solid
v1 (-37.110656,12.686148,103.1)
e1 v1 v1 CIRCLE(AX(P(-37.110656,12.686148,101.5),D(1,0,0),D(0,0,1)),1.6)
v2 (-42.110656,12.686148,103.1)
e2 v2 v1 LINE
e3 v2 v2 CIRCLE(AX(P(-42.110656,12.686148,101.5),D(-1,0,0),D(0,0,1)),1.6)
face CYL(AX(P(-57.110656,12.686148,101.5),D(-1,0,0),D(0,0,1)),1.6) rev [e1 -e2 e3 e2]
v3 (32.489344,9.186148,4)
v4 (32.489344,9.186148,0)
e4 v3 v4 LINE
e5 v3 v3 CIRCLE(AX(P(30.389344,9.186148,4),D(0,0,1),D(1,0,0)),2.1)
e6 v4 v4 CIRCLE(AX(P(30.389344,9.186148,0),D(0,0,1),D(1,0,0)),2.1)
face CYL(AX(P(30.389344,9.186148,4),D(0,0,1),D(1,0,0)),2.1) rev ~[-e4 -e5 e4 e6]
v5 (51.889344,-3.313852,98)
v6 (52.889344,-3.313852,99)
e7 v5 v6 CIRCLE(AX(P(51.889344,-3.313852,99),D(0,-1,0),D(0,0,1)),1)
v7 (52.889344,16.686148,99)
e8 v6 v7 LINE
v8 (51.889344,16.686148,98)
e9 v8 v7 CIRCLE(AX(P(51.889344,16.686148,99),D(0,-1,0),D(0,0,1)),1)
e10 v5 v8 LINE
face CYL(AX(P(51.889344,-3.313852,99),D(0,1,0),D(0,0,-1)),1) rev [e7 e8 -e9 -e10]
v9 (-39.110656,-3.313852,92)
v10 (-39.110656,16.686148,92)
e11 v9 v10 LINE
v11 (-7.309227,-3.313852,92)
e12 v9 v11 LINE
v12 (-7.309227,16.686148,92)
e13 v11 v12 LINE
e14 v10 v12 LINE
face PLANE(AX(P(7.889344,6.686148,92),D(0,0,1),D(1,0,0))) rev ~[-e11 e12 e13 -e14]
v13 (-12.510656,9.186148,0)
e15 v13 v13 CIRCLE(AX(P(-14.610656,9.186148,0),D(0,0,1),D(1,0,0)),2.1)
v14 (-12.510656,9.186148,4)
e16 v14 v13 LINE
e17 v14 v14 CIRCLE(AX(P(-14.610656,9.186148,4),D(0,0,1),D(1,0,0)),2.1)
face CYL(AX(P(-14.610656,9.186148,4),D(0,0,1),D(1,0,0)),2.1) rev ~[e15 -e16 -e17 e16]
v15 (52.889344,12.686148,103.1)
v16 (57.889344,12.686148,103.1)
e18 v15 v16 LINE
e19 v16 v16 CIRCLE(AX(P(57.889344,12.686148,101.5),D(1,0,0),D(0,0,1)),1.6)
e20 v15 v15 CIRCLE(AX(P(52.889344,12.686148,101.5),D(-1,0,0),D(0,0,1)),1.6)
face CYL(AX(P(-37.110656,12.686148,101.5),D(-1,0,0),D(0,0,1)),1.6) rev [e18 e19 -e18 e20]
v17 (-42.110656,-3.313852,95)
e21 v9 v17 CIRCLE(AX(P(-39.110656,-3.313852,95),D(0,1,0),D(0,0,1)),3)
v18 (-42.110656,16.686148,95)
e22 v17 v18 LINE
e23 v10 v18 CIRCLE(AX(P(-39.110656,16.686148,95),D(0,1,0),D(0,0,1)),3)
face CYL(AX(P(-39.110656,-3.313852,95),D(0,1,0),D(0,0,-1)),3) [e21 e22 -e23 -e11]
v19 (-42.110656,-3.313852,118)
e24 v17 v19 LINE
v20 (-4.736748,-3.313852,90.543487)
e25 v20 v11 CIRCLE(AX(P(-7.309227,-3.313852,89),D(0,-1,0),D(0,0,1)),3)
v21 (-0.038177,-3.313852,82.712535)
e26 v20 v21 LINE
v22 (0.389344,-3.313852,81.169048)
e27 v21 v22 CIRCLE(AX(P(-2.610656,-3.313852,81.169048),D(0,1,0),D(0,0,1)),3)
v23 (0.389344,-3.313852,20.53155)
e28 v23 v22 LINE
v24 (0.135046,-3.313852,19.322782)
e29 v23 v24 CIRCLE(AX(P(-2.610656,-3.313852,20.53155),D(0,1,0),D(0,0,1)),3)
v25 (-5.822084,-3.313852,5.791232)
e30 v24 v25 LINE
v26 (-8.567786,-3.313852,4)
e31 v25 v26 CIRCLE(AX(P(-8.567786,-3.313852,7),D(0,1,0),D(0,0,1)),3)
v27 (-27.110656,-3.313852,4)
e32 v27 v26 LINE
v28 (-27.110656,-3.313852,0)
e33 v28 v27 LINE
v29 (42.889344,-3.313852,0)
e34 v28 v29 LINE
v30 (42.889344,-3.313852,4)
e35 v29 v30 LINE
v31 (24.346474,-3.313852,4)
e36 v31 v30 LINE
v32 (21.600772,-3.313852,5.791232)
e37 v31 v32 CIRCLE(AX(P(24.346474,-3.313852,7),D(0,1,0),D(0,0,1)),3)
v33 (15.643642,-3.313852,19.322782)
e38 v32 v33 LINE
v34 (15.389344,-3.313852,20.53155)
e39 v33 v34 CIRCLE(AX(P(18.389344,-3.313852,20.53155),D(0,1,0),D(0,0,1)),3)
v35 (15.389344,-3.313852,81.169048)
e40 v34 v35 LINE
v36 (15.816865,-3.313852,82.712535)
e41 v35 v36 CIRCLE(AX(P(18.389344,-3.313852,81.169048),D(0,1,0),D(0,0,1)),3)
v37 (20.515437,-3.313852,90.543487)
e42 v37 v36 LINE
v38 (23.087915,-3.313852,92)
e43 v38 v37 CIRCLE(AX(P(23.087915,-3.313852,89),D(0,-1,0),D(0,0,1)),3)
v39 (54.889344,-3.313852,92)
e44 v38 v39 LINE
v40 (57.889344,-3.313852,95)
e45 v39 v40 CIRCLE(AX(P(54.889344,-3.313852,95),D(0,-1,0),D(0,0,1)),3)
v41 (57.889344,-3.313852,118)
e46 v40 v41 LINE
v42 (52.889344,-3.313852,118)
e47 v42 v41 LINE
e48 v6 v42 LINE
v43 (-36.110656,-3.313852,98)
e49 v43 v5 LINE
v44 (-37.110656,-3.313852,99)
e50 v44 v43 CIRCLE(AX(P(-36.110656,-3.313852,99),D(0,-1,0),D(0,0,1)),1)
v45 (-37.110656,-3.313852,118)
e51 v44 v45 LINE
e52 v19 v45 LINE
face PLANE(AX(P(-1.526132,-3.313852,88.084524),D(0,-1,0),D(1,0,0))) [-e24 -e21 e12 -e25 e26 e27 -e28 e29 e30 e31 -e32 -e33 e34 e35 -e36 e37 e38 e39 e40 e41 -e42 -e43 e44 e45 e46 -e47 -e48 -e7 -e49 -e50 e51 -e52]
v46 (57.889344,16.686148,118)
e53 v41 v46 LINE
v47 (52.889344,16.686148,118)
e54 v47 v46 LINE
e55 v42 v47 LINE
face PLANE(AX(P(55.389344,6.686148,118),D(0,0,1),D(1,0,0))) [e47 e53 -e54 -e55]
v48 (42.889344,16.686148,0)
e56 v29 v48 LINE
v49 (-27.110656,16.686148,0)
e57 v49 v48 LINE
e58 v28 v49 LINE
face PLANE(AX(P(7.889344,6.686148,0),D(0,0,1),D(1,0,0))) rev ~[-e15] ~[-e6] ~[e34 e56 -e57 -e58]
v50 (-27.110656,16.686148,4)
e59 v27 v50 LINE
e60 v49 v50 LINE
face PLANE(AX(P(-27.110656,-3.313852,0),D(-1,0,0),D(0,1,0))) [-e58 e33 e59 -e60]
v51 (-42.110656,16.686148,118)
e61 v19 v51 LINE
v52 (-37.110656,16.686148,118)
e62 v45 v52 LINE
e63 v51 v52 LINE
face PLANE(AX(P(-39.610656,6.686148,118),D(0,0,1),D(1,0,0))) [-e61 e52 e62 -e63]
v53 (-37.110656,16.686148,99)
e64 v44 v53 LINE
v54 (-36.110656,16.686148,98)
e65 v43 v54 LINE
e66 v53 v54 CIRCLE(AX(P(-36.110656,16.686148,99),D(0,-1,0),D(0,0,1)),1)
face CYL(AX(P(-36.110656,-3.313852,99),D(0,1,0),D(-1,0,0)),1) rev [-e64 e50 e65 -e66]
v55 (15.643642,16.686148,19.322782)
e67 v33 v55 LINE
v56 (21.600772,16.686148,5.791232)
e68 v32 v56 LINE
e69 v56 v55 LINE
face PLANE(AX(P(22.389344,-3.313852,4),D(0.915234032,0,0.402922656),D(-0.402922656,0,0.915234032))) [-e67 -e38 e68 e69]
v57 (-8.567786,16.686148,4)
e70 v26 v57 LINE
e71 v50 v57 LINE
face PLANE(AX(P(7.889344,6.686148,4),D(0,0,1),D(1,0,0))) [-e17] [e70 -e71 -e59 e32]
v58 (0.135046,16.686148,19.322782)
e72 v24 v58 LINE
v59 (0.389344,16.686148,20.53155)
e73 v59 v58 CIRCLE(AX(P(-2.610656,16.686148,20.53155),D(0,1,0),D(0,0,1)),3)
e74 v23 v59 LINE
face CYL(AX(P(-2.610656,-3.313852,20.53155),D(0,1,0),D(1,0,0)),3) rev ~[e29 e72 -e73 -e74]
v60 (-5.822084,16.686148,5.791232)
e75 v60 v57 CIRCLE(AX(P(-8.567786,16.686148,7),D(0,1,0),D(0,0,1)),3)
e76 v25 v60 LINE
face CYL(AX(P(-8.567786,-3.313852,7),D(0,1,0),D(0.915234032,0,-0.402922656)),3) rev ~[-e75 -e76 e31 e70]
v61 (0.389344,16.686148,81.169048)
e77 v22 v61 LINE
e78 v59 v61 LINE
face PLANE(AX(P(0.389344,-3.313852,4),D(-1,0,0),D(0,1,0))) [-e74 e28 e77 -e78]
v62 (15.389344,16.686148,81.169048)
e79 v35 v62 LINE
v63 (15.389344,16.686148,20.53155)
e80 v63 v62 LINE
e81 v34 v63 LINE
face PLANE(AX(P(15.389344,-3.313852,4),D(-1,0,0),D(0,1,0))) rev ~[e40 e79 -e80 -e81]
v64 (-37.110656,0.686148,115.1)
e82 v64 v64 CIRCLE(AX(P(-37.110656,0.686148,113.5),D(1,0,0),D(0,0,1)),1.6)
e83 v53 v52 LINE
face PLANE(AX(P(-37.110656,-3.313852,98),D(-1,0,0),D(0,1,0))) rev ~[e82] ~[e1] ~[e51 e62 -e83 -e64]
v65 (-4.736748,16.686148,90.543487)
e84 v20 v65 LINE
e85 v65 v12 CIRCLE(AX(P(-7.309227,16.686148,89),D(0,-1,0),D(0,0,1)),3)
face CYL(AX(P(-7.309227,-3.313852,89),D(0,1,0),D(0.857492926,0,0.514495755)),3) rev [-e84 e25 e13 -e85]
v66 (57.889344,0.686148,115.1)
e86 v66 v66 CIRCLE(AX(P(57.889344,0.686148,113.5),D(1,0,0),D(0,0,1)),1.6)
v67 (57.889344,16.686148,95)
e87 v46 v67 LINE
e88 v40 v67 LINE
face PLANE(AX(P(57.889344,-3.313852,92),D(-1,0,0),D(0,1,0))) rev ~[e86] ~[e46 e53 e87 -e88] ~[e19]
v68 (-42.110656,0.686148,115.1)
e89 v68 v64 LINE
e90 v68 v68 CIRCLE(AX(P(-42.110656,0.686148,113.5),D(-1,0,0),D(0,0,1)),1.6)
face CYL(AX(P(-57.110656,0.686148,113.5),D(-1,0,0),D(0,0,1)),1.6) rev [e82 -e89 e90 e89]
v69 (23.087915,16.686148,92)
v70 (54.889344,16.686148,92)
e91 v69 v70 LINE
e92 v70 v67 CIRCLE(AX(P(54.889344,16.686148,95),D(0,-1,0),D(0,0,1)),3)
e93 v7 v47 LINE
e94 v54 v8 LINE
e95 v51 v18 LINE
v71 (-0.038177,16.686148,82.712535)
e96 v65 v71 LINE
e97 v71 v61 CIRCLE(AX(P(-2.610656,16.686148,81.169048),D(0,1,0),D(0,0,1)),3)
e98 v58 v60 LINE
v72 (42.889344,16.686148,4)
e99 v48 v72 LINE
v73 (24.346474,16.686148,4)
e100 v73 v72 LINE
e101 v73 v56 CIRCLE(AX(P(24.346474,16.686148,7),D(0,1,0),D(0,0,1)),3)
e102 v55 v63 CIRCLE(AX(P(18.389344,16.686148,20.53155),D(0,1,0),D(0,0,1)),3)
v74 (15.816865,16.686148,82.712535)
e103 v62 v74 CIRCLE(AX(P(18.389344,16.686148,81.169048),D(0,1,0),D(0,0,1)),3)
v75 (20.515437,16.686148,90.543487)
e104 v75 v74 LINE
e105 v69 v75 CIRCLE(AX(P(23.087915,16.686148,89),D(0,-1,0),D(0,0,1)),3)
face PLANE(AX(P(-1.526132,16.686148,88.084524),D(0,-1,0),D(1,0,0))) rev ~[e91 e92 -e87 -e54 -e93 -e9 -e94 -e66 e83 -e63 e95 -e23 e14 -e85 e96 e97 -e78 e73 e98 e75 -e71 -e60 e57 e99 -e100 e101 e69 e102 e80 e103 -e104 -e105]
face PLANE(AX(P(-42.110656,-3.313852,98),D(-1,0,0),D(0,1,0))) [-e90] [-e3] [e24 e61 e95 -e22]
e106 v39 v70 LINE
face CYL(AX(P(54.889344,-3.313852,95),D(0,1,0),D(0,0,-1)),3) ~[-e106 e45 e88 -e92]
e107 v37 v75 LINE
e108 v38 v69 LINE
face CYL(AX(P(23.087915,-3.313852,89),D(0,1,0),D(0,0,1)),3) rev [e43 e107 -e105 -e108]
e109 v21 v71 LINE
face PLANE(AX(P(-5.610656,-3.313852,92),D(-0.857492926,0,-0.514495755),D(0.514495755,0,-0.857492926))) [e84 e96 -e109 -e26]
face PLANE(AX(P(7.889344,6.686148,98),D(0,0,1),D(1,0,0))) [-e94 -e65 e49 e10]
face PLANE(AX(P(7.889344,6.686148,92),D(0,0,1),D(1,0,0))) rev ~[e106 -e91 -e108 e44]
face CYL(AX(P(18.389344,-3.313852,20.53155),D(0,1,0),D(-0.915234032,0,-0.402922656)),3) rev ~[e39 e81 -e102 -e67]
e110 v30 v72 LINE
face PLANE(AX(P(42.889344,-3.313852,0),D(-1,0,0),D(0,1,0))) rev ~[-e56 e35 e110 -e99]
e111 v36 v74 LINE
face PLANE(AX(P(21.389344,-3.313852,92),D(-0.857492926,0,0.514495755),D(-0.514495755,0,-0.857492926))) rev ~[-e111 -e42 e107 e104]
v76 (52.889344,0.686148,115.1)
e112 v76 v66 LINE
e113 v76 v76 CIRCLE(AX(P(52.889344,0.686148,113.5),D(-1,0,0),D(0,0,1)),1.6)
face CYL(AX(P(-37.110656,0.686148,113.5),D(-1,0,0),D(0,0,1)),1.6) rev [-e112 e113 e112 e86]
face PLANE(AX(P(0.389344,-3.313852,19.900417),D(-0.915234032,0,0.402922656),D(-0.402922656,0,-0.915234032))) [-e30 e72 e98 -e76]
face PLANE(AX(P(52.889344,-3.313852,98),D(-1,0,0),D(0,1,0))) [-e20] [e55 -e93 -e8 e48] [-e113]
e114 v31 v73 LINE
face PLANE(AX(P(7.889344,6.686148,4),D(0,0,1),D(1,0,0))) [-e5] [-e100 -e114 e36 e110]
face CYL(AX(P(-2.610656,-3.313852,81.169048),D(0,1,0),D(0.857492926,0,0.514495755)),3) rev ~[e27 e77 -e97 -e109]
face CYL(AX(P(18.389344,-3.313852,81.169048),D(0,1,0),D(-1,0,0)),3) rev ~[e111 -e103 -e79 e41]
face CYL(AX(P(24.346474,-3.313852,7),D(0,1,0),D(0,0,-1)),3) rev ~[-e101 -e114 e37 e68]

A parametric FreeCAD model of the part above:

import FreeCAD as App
import Part
import Sketcher
Q = App.Units.Quantity


def edges_at(feature, points):
    """Names of the edges that pass closest to the given points."""
    edges = feature.Shape.Edges
    near = lambda p: min(range(len(edges)), key=lambda i: edges[i].distToShape(Part.Vertex(*p))[0])
    return sorted({f"Edge{near(p) + 1}" for p in points})


def add_polygon(sketch, points):
    """Adds a closed chain of lines whose ends are joined by coincident constraints."""
    first, n = sketch.GeometryCount, len(points)
    for a, b in zip(points, points[1:] + points[:1]):
        sketch.addGeometry(Part.LineSegment(App.Vector(*a, 0), App.Vector(*b, 0)), False)
    for i in range(n):
        sketch.addConstraint(Sketcher.Constraint("Coincident", first + i, 2, first + (i + 1) % n, 1))

doc = App.newDocument("Part")
params = doc.addObject("Spreadsheet::Sheet", "Params")
for row, (alias, value) in enumerate([
    ("sketch1_width", "70 mm"),
    ("sketch1_height", "20 mm"),
    ("pad1_length", "4 mm"),
    ("sketch2_diameter", "4.2 mm"),
    ("pocket1_length", "4 mm"),
    ("sketch3_width", "15 mm"),
    ("sketch3_height", "20 mm"),
    ("pad2_length", "88 mm"),
    ("sketch4_width", "100 mm"),
    ("sketch4_height", "20 mm"),
    ("pad3_length", "6 mm"),
    ("sketch5_width", "5 mm"),
    ("sketch5_height", "20 mm"),
    ("pad4_length", "20 mm"),
    ("sketch6_diameter", "3.2 mm"),
    ("pocket2_length", "95 mm"),
    ("sketch7_diameter", "3.2 mm"),
    ("pocket3_length", "20 mm"),
    ("sketch8_width", "7 mm"),
    ("pad5_length", "20 mm"),
    ("sketch9_width", "6 mm"),
    ("sketch9_height", "10 mm"),
    ("pad6_length", "20 mm"),
    ("fillet_radius", "3 mm"),
    ("fillet2_radius", "1 mm"),
], start=1):
    params.set(f"A{row}", alias)
    params.set(f"B{row}", "=" + value)
    params.setAlias(f"B{row}", alias)

body = doc.addObject("PartDesign::Body", "Body")

# Sketch on XY plane
sketch1 = body.newObject("Sketcher::SketchObject", "Sketch")
sketch1.AttachmentSupport = (doc.getObject("XY_Plane"), [""])
sketch1.MapMode = "FlatFace"
add_polygon(sketch1, [(-27, 17), (-27, -3), (43, -3), (43, 17)])  # lines 0-3
sketch1.addConstraint([
    Sketcher.Constraint("Vertical", 0),
    Sketcher.Constraint("Horizontal", 1),
    Sketcher.Constraint("Vertical", 2),
    Sketcher.Constraint("Horizontal", 3),
    Sketcher.Constraint("DistanceX", 1, 1, 1, 2, Q("70 mm")),
    Sketcher.Constraint("DistanceY", 0, 2, 0, 1, Q("20 mm")),
    Sketcher.Constraint("DistanceX", 0, 2, -1, 1, Q("27.110656 mm")),
    Sketcher.Constraint("DistanceY", 0, 2, -1, 1, Q("3.313852 mm")),
])
sketch1.setExpression("Constraints[8]", "Params.sketch1_width")
sketch1.setExpression("Constraints[9]", "Params.sketch1_height")
pad1 = body.newObject("PartDesign::Pad", "Pad")
pad1.Profile = sketch1
pad1.setExpression("Length", "Params.pad1_length")

# Sketch on XY plane
sketch2 = body.newObject("Sketcher::SketchObject", "Sketch001")
sketch2.AttachmentSupport = (doc.getObject("XY_Plane"), [""])
sketch2.MapMode = "FlatFace"
sketch2.AttachmentOffset = App.Placement(App.Vector(0, 0, 4), App.Rotation())
sketch2.addGeometry([
    Part.Circle(App.Vector(-14.6, 9.2, 0), App.Vector(0, 0, 1), 2.1),
    Part.Circle(App.Vector(30.4, 9.2, 0), App.Vector(0, 0, 1), 2.1),
], False)
sketch2.addConstraint([
    Sketcher.Constraint("Equal", 0, 1),
    Sketcher.Constraint("Horizontal", 0, 3, 1, 3),
    Sketcher.Constraint("Diameter", 0, Q("4.2 mm")),
    Sketcher.Constraint("DistanceX", 0, 3, 1, 3, Q("45 mm")),
    Sketcher.Constraint("DistanceX", 0, 3, -1, 1, Q("14.610656 mm")),
    Sketcher.Constraint("DistanceY", -1, 1, 0, 3, Q("9.186148 mm")),
])
sketch2.setExpression("Constraints[2]", "Params.sketch2_diameter")
pocket1 = body.newObject("PartDesign::Pocket", "Pocket")
pocket1.Profile = sketch2
pocket1.setExpression("Length", "Params.pocket1_length")

# Sketch on XY plane
sketch3 = body.newObject("Sketcher::SketchObject", "Sketch002")
sketch3.AttachmentSupport = (doc.getObject("XY_Plane"), [""])
sketch3.MapMode = "FlatFace"
sketch3.AttachmentOffset = App.Placement(App.Vector(0, 0, 4), App.Rotation())
add_polygon(sketch3, [(0, 17), (0, -3), (15, -3), (15, 17)])  # lines 0-3
sketch3.addConstraint([
    Sketcher.Constraint("Vertical", 0),
    Sketcher.Constraint("Horizontal", 1),
    Sketcher.Constraint("Vertical", 2),
    Sketcher.Constraint("Horizontal", 3),
    Sketcher.Constraint("DistanceX", 1, 1, 1, 2, Q("15 mm")),
    Sketcher.Constraint("DistanceY", 0, 2, 0, 1, Q("20 mm")),
    Sketcher.Constraint("DistanceX", -1, 1, 0, 2, Q("0.389344 mm")),
    Sketcher.Constraint("DistanceY", 0, 2, -1, 1, Q("3.313852 mm")),
])
sketch3.setExpression("Constraints[8]", "Params.sketch3_width")
sketch3.setExpression("Constraints[9]", "Params.sketch3_height")
pad2 = body.newObject("PartDesign::Pad", "Pad001")
pad2.Profile = sketch3
pad2.setExpression("Length", "Params.pad2_length")

# Sketch on XY plane
sketch4 = body.newObject("Sketcher::SketchObject", "Sketch003")
sketch4.AttachmentSupport = (doc.getObject("XY_Plane"), [""])
sketch4.MapMode = "FlatFace"
sketch4.AttachmentOffset = App.Placement(App.Vector(0, 0, 92), App.Rotation())
add_polygon(sketch4, [(-42, 17), (-42, -3), (58, -3), (58, 17)])  # lines 0-3
sketch4.addConstraint([
    Sketcher.Constraint("Vertical", 0),
    Sketcher.Constraint("Horizontal", 1),
    Sketcher.Constraint("Vertical", 2),
    Sketcher.Constraint("Horizontal", 3),
    Sketcher.Constraint("DistanceX", 1, 1, 1, 2, Q("100 mm")),
    Sketcher.Constraint("DistanceY", 0, 2, 0, 1, Q("20 mm")),
    Sketcher.Constraint("DistanceX", 0, 2, -1, 1, Q("42.110656 mm")),
    Sketcher.Constraint("DistanceY", 0, 2, -1, 1, Q("3.313852 mm")),
])
sketch4.setExpression("Constraints[8]", "Params.sketch4_width")
sketch4.setExpression("Constraints[9]", "Params.sketch4_height")
pad3 = body.newObject("PartDesign::Pad", "Pad002")
pad3.Profile = sketch4
pad3.setExpression("Length", "Params.pad3_length")

# Sketch on XY plane
sketch5 = body.newObject("Sketcher::SketchObject", "Sketch004")
sketch5.AttachmentSupport = (doc.getObject("XY_Plane"), [""])
sketch5.MapMode = "FlatFace"
sketch5.AttachmentOffset = App.Placement(App.Vector(0, 0, 98), App.Rotation())
add_polygon(sketch5, [(-42, 17), (-42, -3), (-37, -3), (-37, 17)])  # lines 0-3
add_polygon(sketch5, [(53, 17), (53, -3), (58, -3), (58, 17)])  # lines 4-7
sketch5.addConstraint([
    Sketcher.Constraint("Vertical", 0),
    Sketcher.Constraint("Horizontal", 1),
    Sketcher.Constraint("Vertical", 2),
    Sketcher.Constraint("Horizontal", 3),
    Sketcher.Constraint("Vertical", 4),
    Sketcher.Constraint("Horizontal", 5),
    Sketcher.Constraint("Vertical", 6),
    Sketcher.Constraint("Horizontal", 7),
    Sketcher.Constraint("Horizontal", 1, 2, 4, 2),
    Sketcher.Constraint("Horizontal", 3, 2, 6, 2),
    Sketcher.Constraint("Equal", 3, 5),
    Sketcher.Constraint("DistanceX", 1, 1, 1, 2, Q("5 mm")),
    Sketcher.Constraint("DistanceY", 0, 2, 0, 1, Q("20 mm")),
    Sketcher.Constraint("DistanceX", 1, 2, 4, 2, Q("90 mm")),
    Sketcher.Constraint("DistanceX", 0, 2, -1, 1, Q("42.110656 mm")),
    Sketcher.Constraint("DistanceY", 0, 2, -1, 1, Q("3.313852 mm")),
])
sketch5.setExpression("Constraints[19]", "Params.sketch5_width")
sketch5.setExpression("Constraints[20]", "Params.sketch5_height")
pad4 = body.newObject("PartDesign::Pad", "Pad003")
pad4.Profile = sketch5
pad4.setExpression("Length", "Params.pad4_length")

# Sketch on YZ plane
sketch6 = body.newObject("Sketcher::SketchObject", "Sketch005")
sketch6.AttachmentSupport = (doc.getObject("YZ_Plane"), [""])
sketch6.MapMode = "FlatFace"
sketch6.AttachmentOffset = App.Placement(App.Vector(0, 0, -37.110656), App.Rotation())
sketch6.addGeometry([
    Part.Circle(App.Vector(12.7, 101.5, 0), App.Vector(0, 0, 1), 1.6),
    Part.Circle(App.Vector(0.7, 113.5, 0), App.Vector(0, 0, 1), 1.6),
], False)
sketch6.addConstraint([
    Sketcher.Constraint("Equal", 0, 1),
    Sketcher.Constraint("Diameter", 0, Q("3.2 mm")),
    Sketcher.Constraint("DistanceX", 1, 3, 0, 3, Q("12 mm")),
    Sketcher.Constraint("DistanceY", 0, 3, 1, 3, Q("12 mm")),
    Sketcher.Constraint("DistanceY", -1, 1, 0, 3, Q("101.5 mm")),
    Sketcher.Constraint("DistanceX", -1, 1, 0, 3, Q("12.686148 mm")),
])
sketch6.setExpression("Constraints[1]", "Params.sketch6_diameter")
pocket2 = body.newObject("PartDesign::Pocket", "Pocket001")
pocket2.Profile = sketch6
pocket2.setExpression("Length", "Params.pocket2_length")
pocket2.Reversed = True

# Sketch on YZ plane
sketch7 = body.newObject("Sketcher::SketchObject", "Sketch006")
sketch7.AttachmentSupport = (doc.getObject("YZ_Plane"), [""])
sketch7.MapMode = "FlatFace"
sketch7.AttachmentOffset = App.Placement(App.Vector(0, 0, -57.110656), App.Rotation())
sketch7.addGeometry([
    Part.Circle(App.Vector(12.7, 101.5, 0), App.Vector(0, 0, 1), 1.6),
    Part.Circle(App.Vector(0.7, 113.5, 0), App.Vector(0, 0, 1), 1.6),
], False)
sketch7.addConstraint([
    Sketcher.Constraint("Equal", 0, 1),
    Sketcher.Constraint("Diameter", 0, Q("3.2 mm")),
    Sketcher.Constraint("DistanceX", 1, 3, 0, 3, Q("12 mm")),
    Sketcher.Constraint("DistanceY", 0, 3, 1, 3, Q("12 mm")),
    Sketcher.Constraint("DistanceY", -1, 1, 0, 3, Q("101.5 mm")),
    Sketcher.Constraint("DistanceX", -1, 1, 0, 3, Q("12.686148 mm")),
])
sketch7.setExpression("Constraints[1]", "Params.sketch7_diameter")
pocket3 = body.newObject("PartDesign::Pocket", "Pocket002")
pocket3.Profile = sketch7
pocket3.setExpression("Length", "Params.pocket3_length")
pocket3.Reversed = True

# Sketch on XZ plane
sketch8 = body.newObject("Sketcher::SketchObject", "Sketch007")
sketch8.AttachmentSupport = (doc.getObject("XZ_Plane"), [""])
sketch8.MapMode = "FlatFace"
sketch8.AttachmentOffset = App.Placement(App.Vector(0, 0, 3.313852), App.Rotation())
add_polygon(sketch8, [(0, 4), (0, 20), (-7, 4)])  # lines 0-2
add_polygon(sketch8, [(15, 4), (22, 4), (15, 20)])  # lines 3-5
sketch8.addConstraint([
    Sketcher.Constraint("Vertical", 0),
    Sketcher.Constraint("Horizontal", 2),
    Sketcher.Constraint("Horizontal", 3),
    Sketcher.Constraint("Vertical", 5),
    Sketcher.Constraint("Horizontal", 2, 2, 3, 2),
    Sketcher.Constraint("Horizontal", 0, 2, 4, 2),
    Sketcher.Constraint("Equal", 2, 3),
    Sketcher.Constraint("DistanceX", 2, 1, 2, 2, Q("7 mm")),
    Sketcher.Constraint("DistanceY", -1, 1, 1, 2, Q("4 mm")),
    Sketcher.Constraint("DistanceX", 2, 2, 3, 2, Q("22 mm")),
    Sketcher.Constraint("Distance", 1, Q("17.373061 mm")),
    Sketcher.Constraint("DistanceX", -1, 1, 0, 2, Q("0.389344 mm")),
])
sketch8.setExpression("Constraints[13]", "Params.sketch8_width")
pad5 = body.newObject("PartDesign::Pad", "Pad004")
pad5.Profile = sketch8
pad5.setExpression("Length", "Params.pad5_length")
pad5.Reversed = True

# Sketch on XZ plane
sketch9 = body.newObject("Sketcher::SketchObject", "Sketch008")
sketch9.AttachmentSupport = (doc.getObject("XZ_Plane"), [""])
sketch9.MapMode = "FlatFace"
sketch9.AttachmentOffset = App.Placement(App.Vector(0, 0, 3.313852), App.Rotation())
add_polygon(sketch9, [(-6, 92), (0, 82), (0, 92)])  # lines 0-2
add_polygon(sketch9, [(15, 92), (15, 82), (21, 92)])  # lines 3-5
sketch9.addConstraint([
    Sketcher.Constraint("Vertical", 1),
    Sketcher.Constraint("Horizontal", 2),
    Sketcher.Constraint("Vertical", 3),
    Sketcher.Constraint("Horizontal", 5),
    Sketcher.Constraint("Horizontal", 0, 2, 3, 2),
    Sketcher.Constraint("Horizontal", 2, 2, 4, 2),
    Sketcher.Constraint("Equal", 2, 5),
    Sketcher.Constraint("DistanceX", 2, 2, 2, 1, Q("6 mm")),
    Sketcher.Constraint("DistanceY", 1, 1, 1, 2, Q("10 mm")),
    Sketcher.Constraint("DistanceY", -1, 1, 0, 2, Q("82 mm")),
    Sketcher.Constraint("DistanceX", 0, 2, 3, 2, Q("15 mm")),
    Sketcher.Constraint("DistanceX", -1, 1, 0, 2, Q("0.389344 mm")),
])
sketch9.setExpression("Constraints[13]", "Params.sketch9_width")
sketch9.setExpression("Constraints[14]", "Params.sketch9_height")
pad6 = body.newObject("PartDesign::Pad", "Pad005")
pad6.Profile = sketch9
pad6.setExpression("Length", "Params.pad6_length")
pad6.Reversed = True
doc.recompute()

fillet = body.newObject("PartDesign::Fillet", "Fillet")
fillet.Base = (pad6, edges_at(pad6, [
    (-6.611, 6.686, 4),
    (0.389, 6.686, 19.9),
    (15.389, 6.686, 19.9),
    (22.389, 6.686, 4),
    (-5.611, 6.686, 92),
    (0.389, 6.686, 82),
    (21.389, 6.686, 92),
    (15.389, 6.686, 82),
    (-42.111, 6.686, 92),
    (57.889, 6.686, 92),
]))
fillet.setExpression("Radius", "Params.fillet_radius")
doc.recompute()

fillet2 = body.newObject("PartDesign::Fillet", "Fillet001")
fillet2.Base = (fillet, edges_at(fillet, [(-37.111, 6.686, 98), (52.889, 6.686, 98)]))
fillet2.setExpression("Radius", "Params.fillet2_radius")

doc.recompute()
